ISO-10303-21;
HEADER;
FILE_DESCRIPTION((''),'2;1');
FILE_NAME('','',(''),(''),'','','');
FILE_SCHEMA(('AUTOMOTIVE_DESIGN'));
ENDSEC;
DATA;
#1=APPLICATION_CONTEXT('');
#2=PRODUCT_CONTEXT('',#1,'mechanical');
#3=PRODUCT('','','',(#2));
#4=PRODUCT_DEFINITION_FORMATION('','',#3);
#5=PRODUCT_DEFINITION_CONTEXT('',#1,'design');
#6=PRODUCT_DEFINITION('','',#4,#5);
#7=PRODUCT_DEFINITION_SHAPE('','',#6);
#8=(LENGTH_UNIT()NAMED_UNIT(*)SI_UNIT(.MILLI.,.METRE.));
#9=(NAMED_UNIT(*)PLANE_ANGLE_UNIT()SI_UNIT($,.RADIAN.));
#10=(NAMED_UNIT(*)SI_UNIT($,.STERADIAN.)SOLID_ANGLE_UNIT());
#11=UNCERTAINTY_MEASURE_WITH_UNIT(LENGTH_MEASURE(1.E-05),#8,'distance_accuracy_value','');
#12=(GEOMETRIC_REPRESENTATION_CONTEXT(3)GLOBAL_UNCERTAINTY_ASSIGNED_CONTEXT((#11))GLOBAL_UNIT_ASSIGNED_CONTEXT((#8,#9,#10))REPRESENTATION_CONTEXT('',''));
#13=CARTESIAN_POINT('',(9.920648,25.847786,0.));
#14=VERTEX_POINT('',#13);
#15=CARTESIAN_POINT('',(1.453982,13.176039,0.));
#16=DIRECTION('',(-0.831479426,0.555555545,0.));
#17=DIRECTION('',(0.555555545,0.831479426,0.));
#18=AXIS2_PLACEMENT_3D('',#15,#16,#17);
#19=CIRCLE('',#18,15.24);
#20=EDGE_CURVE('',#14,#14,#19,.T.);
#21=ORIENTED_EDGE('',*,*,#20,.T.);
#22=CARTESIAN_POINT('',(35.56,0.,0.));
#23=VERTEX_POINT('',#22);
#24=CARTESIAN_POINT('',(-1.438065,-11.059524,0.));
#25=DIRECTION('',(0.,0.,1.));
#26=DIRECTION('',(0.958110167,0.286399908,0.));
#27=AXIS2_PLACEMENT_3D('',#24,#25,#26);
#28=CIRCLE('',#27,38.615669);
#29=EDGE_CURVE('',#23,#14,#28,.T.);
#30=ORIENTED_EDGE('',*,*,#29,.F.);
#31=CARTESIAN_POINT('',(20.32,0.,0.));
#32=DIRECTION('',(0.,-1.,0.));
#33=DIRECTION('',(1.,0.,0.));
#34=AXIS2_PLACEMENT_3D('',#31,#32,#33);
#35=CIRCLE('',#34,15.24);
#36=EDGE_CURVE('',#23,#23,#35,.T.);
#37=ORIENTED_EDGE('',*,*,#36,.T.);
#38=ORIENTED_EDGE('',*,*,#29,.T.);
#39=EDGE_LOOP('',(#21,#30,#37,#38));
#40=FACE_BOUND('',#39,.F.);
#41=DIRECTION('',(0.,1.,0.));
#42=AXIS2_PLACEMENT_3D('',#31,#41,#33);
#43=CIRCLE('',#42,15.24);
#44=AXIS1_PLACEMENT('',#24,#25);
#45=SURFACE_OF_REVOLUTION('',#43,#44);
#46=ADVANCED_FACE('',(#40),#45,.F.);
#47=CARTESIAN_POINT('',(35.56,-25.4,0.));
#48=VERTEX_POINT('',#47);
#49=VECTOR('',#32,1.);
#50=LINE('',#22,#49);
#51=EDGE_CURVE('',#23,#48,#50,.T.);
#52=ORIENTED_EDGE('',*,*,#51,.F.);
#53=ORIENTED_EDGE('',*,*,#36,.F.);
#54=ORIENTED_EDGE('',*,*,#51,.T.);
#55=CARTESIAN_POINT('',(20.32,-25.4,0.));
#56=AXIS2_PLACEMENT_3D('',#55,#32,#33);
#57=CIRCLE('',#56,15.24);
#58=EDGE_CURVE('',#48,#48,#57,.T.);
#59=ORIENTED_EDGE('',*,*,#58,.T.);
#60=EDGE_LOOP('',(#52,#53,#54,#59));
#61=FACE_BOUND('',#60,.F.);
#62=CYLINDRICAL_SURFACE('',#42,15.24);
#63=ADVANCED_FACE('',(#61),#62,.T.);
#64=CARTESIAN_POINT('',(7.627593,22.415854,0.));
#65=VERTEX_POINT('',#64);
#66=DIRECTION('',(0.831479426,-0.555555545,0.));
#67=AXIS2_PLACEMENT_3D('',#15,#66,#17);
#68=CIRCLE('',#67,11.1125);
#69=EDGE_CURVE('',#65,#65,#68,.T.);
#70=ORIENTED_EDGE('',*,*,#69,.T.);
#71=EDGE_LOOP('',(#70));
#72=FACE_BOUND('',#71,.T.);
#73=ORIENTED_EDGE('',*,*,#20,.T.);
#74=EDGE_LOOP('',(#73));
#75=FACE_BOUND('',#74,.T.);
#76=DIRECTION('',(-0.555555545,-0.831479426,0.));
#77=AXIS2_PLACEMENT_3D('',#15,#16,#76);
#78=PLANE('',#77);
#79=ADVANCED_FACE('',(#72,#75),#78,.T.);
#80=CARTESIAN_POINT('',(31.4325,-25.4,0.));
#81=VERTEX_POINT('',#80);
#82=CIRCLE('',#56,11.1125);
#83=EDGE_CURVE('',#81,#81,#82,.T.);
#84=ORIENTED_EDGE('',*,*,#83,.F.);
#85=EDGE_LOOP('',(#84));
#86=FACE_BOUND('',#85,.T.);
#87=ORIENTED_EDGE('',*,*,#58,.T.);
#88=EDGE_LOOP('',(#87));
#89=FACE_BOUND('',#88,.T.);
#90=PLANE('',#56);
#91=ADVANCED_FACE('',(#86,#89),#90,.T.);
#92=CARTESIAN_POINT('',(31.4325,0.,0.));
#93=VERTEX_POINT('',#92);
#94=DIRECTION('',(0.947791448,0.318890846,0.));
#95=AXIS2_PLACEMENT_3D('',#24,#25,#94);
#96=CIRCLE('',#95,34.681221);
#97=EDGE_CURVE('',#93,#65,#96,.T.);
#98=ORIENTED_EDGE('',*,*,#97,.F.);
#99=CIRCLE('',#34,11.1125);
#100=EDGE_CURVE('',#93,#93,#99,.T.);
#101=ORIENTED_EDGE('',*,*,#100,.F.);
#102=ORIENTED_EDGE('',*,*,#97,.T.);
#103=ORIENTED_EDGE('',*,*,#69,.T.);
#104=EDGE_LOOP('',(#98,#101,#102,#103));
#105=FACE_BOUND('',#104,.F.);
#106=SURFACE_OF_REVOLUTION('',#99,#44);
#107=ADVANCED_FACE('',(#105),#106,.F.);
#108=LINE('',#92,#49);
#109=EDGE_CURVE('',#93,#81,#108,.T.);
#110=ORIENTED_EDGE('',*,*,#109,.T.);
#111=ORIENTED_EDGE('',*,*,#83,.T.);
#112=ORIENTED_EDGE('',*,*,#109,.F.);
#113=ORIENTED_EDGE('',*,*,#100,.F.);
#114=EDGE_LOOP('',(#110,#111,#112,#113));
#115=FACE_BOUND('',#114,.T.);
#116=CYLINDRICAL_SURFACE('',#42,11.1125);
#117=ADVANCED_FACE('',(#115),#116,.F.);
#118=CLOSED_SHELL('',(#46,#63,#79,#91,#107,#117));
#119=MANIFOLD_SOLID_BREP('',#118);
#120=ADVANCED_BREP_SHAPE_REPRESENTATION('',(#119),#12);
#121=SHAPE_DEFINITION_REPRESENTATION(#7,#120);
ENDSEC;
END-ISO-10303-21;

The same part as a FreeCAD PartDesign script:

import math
import FreeCAD as App
import Part
import Sketcher
Q = App.Units.Quantity

doc = App.newDocument("Part")
body = doc.addObject("PartDesign::Body", "Body")

# Sketch on XZ plane
sketch1 = doc.addObject("Sketcher::SketchObject", "Sketch")
body.addObject(sketch1)
sketch1.AttachmentSupport = (doc.XZ_Plane, [""])
sketch1.MapMode = "FlatFace"
sketch1.addGeometry([
    Part.Circle(App.Vector(20.32, 0, 0), App.Vector(0, 0, 1), 15.24),
    Part.Circle(App.Vector(20.32, 0, 0), App.Vector(0, 0, 1), 11.1125),
], False)
sketch1.addConstraint([
    Sketcher.Constraint("Coincident", 1, 3, 0, 3),
    Sketcher.Constraint("PointOnObject", 0, 3, -1),
    Sketcher.Constraint("Diameter", 0, Q("1.2 in")),
    Sketcher.Constraint("Diameter", 1, Q("0.875 in")),
    Sketcher.Constraint("DistanceX", -1, 1, 0, 3, Q("0.8 in")),
])
pad1 = doc.addObject("PartDesign::Pad", "Pad")
body.addObject(pad1)
pad1.Profile = sketch1
pad1.Length = Q("1 in")

# Sketch on XZ plane
sketch2 = doc.addObject("Sketcher::SketchObject", "Sketch001")
body.addObject(sketch2)
sketch2.AttachmentSupport = (doc.XZ_Plane, [""])
sketch2.MapMode = "FlatFace"
sketch2.addGeometry([
    Part.Circle(App.Vector(20.32, 0, 0), App.Vector(0, 0, 1), 15.24),
    Part.Circle(App.Vector(20.32, 0, 0), App.Vector(0, 0, 1), 11.1125),
], False)
sketch2.addConstraint([
    Sketcher.Constraint("Coincident", 1, 3, 0, 3),
    Sketcher.Constraint("PointOnObject", 0, 3, -1),
    Sketcher.Constraint("Diameter", 0, Q("1.2 in")),
    Sketcher.Constraint("Diameter", 1, Q("0.875 in")),
    Sketcher.Constraint("DistanceX", -1, 1, 0, 3, Q("0.8 in")),
])

# Sketch on XY plane
sketch3 = doc.addObject("Sketcher::SketchObject", "Sketch002")
body.addObject(sketch3)
sketch3.AttachmentSupport = (doc.XY_Plane, [""])
sketch3.MapMode = "FlatFace"
sketch3.addGeometry(Part.ArcOfCircle(Part.Circle(App.Vector(-1.438065, -11.059524, 0), App.Vector(0, 0, 1), 38.1), math.radians(16.874494), math.radians(73.125506)), False)
sketch3.addConstraint([
    Sketcher.Constraint("PointOnObject", 0, 1, -1),
    Sketcher.Constraint("Radius", 0, Q("1.5 in")),
    Sketcher.Constraint("DistanceY", -1, 1, 0, 2, Q("1 in")),
    Sketcher.Constraint("DistanceX", 0, 2, 0, 1, Q("1 in")),
    Sketcher.Constraint("DistanceX", -1, 1, 0, 1, Q("35.021459 mm")),
])
doc.recompute()

additivepipe = doc.addObject("PartDesign::AdditivePipe", "AdditivePipe")
body.addObject(additivepipe)
additivepipe.Profile = sketch2
additivepipe.Spine = (sketch3, ["Edge1"])

doc.recompute()
